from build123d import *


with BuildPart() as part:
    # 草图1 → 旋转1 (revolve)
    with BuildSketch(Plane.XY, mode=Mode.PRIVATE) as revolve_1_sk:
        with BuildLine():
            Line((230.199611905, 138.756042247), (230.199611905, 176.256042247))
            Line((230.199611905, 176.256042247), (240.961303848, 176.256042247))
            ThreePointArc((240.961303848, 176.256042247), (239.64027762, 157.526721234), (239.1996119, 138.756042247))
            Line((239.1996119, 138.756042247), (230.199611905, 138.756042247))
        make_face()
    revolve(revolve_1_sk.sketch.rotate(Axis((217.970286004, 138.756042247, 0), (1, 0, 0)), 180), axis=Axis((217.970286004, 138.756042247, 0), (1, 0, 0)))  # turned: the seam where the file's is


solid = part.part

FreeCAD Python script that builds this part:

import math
import FreeCAD as App
import Part
import Sketcher

V = App.Vector
Q = App.Units.Quantity

doc = App.newDocument("Part")
body = doc.addObject("PartDesign::Body", "Body")

# Sketch on XY plane
sketch1 = body.newObject("Sketcher::SketchObject", "Sketch")
sketch1.AttachmentSupport = (doc.getObject("XY_Plane"), [""])
sketch1.MapMode = "FlatFace"
sketch1.addGeometry([
    Part.LineSegment(V(230.199612, 176.256042, 0), V(230.199612, 138.756042, 0)),
    Part.LineSegment(V(230.199612, 138.756042, 0), V(239.199612, 138.756042, 0)),
    Part.ArcOfCircle(Part.Circle(V(639.199612, 138.756042, 0), V(0, 0, 1), 400), math.radians(174.620621), math.radians(180)),
    Part.LineSegment(V(240.961304, 176.256042, 0), V(230.199612, 176.256042, 0)),
], False)
sketch1.addGeometry(Part.LineSegment(V(230.199612, 138.756042, 0), V(639.199612, 138.756042, 0)), True)  # axis
sketch1.addConstraint([
    Sketcher.Constraint("Coincident", 0, 2, 1, 1),
    Sketcher.Constraint("Coincident", 1, 2, 2, 2),
    Sketcher.Constraint("Coincident", 2, 1, 3, 1),
    Sketcher.Constraint("Coincident", 3, 2, 0, 1),
    Sketcher.Constraint("Vertical", 0),
    Sketcher.Constraint("Horizontal", 1),
    Sketcher.Constraint("Horizontal", 3),
    Sketcher.Constraint("Horizontal", 4),
    Sketcher.Constraint("Coincident", 4, 1, 0, 2),
    Sketcher.Constraint("Coincident", 4, 2, 2, 3),
    Sketcher.Constraint("Radius", 2, Q("400 mm")),
    Sketcher.Constraint("DistanceX", 1, 1, 1, 2, Q("9 mm")),
    Sketcher.Constraint("DistanceY", 0, 2, 0, 1, Q("37.5 mm")),
    Sketcher.Constraint("DistanceX", -1, 1, 0, 2, Q("230.199612 mm")),
    Sketcher.Constraint("DistanceY", -1, 1, 2, 3, Q("138.756042 mm")),
])
revolution = body.newObject("PartDesign::Revolution", "Revolution")
revolution.Profile = sketch1
revolution.ReferenceAxis = (sketch1, ["Axis0"])
revolution.Angle = 360

doc.recompute()
